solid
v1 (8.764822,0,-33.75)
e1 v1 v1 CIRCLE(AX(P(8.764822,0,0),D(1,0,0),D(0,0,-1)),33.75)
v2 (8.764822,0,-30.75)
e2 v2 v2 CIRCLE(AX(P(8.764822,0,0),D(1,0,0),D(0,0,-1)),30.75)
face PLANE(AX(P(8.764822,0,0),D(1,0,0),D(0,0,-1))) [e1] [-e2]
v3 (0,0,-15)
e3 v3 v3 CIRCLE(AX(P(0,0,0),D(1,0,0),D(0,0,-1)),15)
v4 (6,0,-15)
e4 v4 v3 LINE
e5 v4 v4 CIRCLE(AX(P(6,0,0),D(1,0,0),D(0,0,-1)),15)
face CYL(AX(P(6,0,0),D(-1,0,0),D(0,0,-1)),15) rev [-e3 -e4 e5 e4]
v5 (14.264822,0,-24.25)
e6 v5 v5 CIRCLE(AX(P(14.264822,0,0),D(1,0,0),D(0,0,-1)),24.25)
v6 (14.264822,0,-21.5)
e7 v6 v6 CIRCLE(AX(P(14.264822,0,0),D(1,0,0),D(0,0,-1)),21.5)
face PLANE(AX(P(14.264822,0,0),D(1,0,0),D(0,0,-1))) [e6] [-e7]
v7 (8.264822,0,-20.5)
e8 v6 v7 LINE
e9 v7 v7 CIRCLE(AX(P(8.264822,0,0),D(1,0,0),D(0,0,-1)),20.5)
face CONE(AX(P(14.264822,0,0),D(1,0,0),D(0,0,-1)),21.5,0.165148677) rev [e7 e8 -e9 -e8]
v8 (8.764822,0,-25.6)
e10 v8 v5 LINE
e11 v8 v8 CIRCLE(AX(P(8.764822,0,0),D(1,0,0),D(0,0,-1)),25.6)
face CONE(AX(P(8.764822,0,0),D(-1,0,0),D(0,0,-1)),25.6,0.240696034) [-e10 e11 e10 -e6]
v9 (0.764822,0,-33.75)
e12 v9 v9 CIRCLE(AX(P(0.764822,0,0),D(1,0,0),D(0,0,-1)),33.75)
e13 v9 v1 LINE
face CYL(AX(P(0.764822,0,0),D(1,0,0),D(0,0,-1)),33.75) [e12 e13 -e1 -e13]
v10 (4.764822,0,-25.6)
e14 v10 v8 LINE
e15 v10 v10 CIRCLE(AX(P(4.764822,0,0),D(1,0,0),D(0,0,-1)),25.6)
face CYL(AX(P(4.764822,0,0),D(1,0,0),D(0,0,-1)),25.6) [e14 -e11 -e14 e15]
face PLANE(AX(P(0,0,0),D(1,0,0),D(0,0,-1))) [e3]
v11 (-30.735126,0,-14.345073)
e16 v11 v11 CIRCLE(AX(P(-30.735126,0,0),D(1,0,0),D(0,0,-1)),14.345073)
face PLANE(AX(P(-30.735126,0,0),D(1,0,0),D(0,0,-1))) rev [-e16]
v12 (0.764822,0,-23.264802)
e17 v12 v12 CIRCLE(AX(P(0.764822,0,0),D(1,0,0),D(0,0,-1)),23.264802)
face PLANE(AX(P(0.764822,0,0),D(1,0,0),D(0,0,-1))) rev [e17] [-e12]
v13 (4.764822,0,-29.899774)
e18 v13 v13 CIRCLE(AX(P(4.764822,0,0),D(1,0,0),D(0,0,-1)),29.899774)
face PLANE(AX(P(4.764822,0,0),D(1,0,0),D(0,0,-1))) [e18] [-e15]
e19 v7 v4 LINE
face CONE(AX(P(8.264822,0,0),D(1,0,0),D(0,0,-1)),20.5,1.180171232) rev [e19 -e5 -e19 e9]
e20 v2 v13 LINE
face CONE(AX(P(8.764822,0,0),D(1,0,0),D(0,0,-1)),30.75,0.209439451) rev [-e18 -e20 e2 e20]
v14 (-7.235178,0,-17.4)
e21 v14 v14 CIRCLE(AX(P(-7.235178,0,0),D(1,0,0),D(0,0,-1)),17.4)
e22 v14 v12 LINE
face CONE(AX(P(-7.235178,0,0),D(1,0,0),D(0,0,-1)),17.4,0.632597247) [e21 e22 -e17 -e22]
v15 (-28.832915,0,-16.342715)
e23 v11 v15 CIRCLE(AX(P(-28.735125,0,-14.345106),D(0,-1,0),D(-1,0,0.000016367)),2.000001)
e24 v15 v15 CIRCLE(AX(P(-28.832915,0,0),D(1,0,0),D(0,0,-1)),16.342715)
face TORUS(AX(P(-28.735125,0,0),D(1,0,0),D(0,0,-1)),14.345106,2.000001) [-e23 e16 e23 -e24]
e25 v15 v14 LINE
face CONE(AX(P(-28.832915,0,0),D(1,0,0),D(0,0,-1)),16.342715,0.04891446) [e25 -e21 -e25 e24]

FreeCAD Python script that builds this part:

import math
import FreeCAD as App
import Part
import Sketcher
Q = App.Units.Quantity

doc = App.newDocument("Part")
params = doc.addObject("Spreadsheet::Sheet", "Params")
for row, (alias, value) in enumerate([
    ("sketch1_radius", "2.000001 mm"),
    ("sketch1_width", "8 mm"),
    ("sketch1_width2", "4 mm"),
    ("sketch1_width3", "6 mm"),
    ("sketch1_height", "3 mm"),
    ("revolution_angle", "360 deg"),
], start=1):
    params.set(f"A{row}", alias)
    params.set(f"B{row}", "=" + value)
    params.setAlias(f"B{row}", alias)

body = doc.addObject("PartDesign::Body", "Body")

# Sketch on XZ plane
sketch1 = body.newObject("Sketcher::SketchObject", "Sketch")
sketch1.AttachmentSupport = (doc.getObject("XZ_Plane"), [""])
sketch1.MapMode = "FlatFace"
sketch1.addGeometry([
    Part.ArcOfCircle(Part.Circle(App.Vector(-28.7, -14.3, 0), App.Vector(0, 0, 1), 2), math.radians(180), math.radians(267)),  # 0
    Part.LineSegment(App.Vector(-28.8, -16.3, 0), App.Vector(-7.2, -17.4, 0)),  # 1
    Part.LineSegment(App.Vector(-7.2, -17.4, 0), App.Vector(0.8, -23.3, 0)),  # 2
    Part.LineSegment(App.Vector(0.8, -23.3, 0), App.Vector(0.8, -33.8, 0)),  # 3
    Part.LineSegment(App.Vector(0.8, -33.8, 0), App.Vector(8.8, -33.8, 0)),  # 4
    Part.LineSegment(App.Vector(8.8, -33.8, 0), App.Vector(8.8, -30.8, 0)),  # 5
    Part.LineSegment(App.Vector(8.8, -30.8, 0), App.Vector(4.8, -29.9, 0)),  # 6
    Part.LineSegment(App.Vector(4.8, -29.9, 0), App.Vector(4.8, -25.6, 0)),  # 7
    Part.LineSegment(App.Vector(4.8, -25.6, 0), App.Vector(8.8, -25.6, 0)),  # 8
    Part.LineSegment(App.Vector(8.8, -25.6, 0), App.Vector(14.3, -24.2, 0)),  # 9
    Part.LineSegment(App.Vector(14.3, -24.2, 0), App.Vector(14.3, -21.5, 0)),  # 10
    Part.LineSegment(App.Vector(14.3, -21.5, 0), App.Vector(8.3, -20.5, 0)),  # 11
    Part.LineSegment(App.Vector(8.3, -20.5, 0), App.Vector(6, -15, 0)),  # 12
    Part.LineSegment(App.Vector(6, -15, 0), App.Vector(0, -15, 0)),  # 13
    Part.LineSegment(App.Vector(0, -15, 0), App.Vector(0, 0, 0)),  # 14
    Part.LineSegment(App.Vector(0, 0, 0), App.Vector(-30.7, 0, 0)),  # 15
    Part.LineSegment(App.Vector(-30.7, 0, 0), App.Vector(-30.7, -14.3, 0)),  # 16
], False)
sketch1.addConstraint([
    Sketcher.Constraint("Tangent", 0, 2, 1, 1),
    Sketcher.Constraint("Coincident", 1, 2, 2, 1),
    Sketcher.Constraint("Coincident", 2, 2, 3, 1),
    Sketcher.Constraint("Coincident", 3, 2, 4, 1),
    Sketcher.Constraint("Coincident", 4, 2, 5, 1),
    Sketcher.Constraint("Coincident", 5, 2, 6, 1),
    Sketcher.Constraint("Coincident", 6, 2, 7, 1),
    Sketcher.Constraint("Coincident", 7, 2, 8, 1),
    Sketcher.Constraint("Coincident", 8, 2, 9, 1),
    Sketcher.Constraint("Coincident", 9, 2, 10, 1),
    Sketcher.Constraint("Coincident", 10, 2, 11, 1),
    Sketcher.Constraint("Coincident", 11, 2, 12, 1),
    Sketcher.Constraint("Coincident", 12, 2, 13, 1),
    Sketcher.Constraint("Coincident", 13, 2, 14, 1),
    Sketcher.Constraint("Coincident", 14, 2, 15, 1),
    Sketcher.Constraint("Coincident", 15, 2, 16, 1),
    Sketcher.Constraint("Coincident", 16, 2, 0, 1),
    Sketcher.Constraint("Vertical", 3),
    Sketcher.Constraint("Horizontal", 4),
    Sketcher.Constraint("Vertical", 5),
    Sketcher.Constraint("Vertical", 7),
    Sketcher.Constraint("Horizontal", 8),
    Sketcher.Constraint("Vertical", 10),
    Sketcher.Constraint("Horizontal", 13),
    Sketcher.Constraint("Vertical", 14),
    Sketcher.Constraint("Horizontal", 15),
    Sketcher.Constraint("Vertical", 16),
    Sketcher.Constraint("Coincident", 14, 2, -1, 1),
    Sketcher.Constraint("Vertical", 5, 2, 8, 2),
    Sketcher.Constraint("Radius", 0, 2.000001),
    Sketcher.Constraint("DistanceX", 4, 1, 4, 2, 8.0),
    Sketcher.Constraint("DistanceX", 8, 1, 8, 2, 4.0),
    Sketcher.Constraint("DistanceX", 13, 2, 13, 1, 6.0),
    Sketcher.Constraint("DistanceY", 5, 1, 5, 2, 3.0),
    Sketcher.Constraint("DistanceY", 14, 1, 14, 2, 15.0),
    Sketcher.Constraint("Angle", 6, Q("168.000003 deg")),
    Sketcher.Constraint("DistanceX", 1, 2, 2, 2, 8.0),
    Sketcher.Constraint("DistanceX", 11, 2, 10, 2, 6.0),
    Sketcher.Constraint("DistanceY", 10, 2, 11, 2, 1.0),
    Sketcher.Constraint("DistanceY", 10, 1, 10, 2, 2.75),
    Sketcher.Constraint("DistanceY", 1, 2, -1, 1, 17.4),
    Sketcher.Constraint("DistanceY", 7, 2, -1, 1, 25.6),
    Sketcher.Constraint("DistanceY", 10, 2, -1, 1, 21.5),
    Sketcher.Constraint("DistanceX", 8, 2, 9, 2, 5.5),
    Sketcher.Constraint("DistanceY", 5, 2, 9, 2, 6.5),
    Sketcher.Constraint("Distance", 1, 21.6236),
    Sketcher.Constraint("DistanceY", 2, 2, -1, 1, 23.264802),
    Sketcher.Constraint("Distance", 12, 5.94806),
    Sketcher.Constraint("DistanceX", 15, 2, 15, 1, 30.735126),
    Sketcher.Constraint("DistanceY", 16, 2, 16, 1, 14.345073),
])
sketch1.setExpression("Constraints[29]", "Params.sketch1_radius")
sketch1.setExpression("Constraints[30]", "Params.sketch1_width")
sketch1.setExpression("Constraints[31]", "Params.sketch1_width2")
sketch1.setExpression("Constraints[32]", "Params.sketch1_width3")
sketch1.setExpression("Constraints[33]", "Params.sketch1_height")
revolution = body.newObject("PartDesign::Revolution", "Revolution")
revolution.Profile = sketch1
revolution.ReferenceAxis = (sketch1, ["H_Axis"])
revolution.setExpression("Angle", "Params.revolution_angle")

doc.recompute()
